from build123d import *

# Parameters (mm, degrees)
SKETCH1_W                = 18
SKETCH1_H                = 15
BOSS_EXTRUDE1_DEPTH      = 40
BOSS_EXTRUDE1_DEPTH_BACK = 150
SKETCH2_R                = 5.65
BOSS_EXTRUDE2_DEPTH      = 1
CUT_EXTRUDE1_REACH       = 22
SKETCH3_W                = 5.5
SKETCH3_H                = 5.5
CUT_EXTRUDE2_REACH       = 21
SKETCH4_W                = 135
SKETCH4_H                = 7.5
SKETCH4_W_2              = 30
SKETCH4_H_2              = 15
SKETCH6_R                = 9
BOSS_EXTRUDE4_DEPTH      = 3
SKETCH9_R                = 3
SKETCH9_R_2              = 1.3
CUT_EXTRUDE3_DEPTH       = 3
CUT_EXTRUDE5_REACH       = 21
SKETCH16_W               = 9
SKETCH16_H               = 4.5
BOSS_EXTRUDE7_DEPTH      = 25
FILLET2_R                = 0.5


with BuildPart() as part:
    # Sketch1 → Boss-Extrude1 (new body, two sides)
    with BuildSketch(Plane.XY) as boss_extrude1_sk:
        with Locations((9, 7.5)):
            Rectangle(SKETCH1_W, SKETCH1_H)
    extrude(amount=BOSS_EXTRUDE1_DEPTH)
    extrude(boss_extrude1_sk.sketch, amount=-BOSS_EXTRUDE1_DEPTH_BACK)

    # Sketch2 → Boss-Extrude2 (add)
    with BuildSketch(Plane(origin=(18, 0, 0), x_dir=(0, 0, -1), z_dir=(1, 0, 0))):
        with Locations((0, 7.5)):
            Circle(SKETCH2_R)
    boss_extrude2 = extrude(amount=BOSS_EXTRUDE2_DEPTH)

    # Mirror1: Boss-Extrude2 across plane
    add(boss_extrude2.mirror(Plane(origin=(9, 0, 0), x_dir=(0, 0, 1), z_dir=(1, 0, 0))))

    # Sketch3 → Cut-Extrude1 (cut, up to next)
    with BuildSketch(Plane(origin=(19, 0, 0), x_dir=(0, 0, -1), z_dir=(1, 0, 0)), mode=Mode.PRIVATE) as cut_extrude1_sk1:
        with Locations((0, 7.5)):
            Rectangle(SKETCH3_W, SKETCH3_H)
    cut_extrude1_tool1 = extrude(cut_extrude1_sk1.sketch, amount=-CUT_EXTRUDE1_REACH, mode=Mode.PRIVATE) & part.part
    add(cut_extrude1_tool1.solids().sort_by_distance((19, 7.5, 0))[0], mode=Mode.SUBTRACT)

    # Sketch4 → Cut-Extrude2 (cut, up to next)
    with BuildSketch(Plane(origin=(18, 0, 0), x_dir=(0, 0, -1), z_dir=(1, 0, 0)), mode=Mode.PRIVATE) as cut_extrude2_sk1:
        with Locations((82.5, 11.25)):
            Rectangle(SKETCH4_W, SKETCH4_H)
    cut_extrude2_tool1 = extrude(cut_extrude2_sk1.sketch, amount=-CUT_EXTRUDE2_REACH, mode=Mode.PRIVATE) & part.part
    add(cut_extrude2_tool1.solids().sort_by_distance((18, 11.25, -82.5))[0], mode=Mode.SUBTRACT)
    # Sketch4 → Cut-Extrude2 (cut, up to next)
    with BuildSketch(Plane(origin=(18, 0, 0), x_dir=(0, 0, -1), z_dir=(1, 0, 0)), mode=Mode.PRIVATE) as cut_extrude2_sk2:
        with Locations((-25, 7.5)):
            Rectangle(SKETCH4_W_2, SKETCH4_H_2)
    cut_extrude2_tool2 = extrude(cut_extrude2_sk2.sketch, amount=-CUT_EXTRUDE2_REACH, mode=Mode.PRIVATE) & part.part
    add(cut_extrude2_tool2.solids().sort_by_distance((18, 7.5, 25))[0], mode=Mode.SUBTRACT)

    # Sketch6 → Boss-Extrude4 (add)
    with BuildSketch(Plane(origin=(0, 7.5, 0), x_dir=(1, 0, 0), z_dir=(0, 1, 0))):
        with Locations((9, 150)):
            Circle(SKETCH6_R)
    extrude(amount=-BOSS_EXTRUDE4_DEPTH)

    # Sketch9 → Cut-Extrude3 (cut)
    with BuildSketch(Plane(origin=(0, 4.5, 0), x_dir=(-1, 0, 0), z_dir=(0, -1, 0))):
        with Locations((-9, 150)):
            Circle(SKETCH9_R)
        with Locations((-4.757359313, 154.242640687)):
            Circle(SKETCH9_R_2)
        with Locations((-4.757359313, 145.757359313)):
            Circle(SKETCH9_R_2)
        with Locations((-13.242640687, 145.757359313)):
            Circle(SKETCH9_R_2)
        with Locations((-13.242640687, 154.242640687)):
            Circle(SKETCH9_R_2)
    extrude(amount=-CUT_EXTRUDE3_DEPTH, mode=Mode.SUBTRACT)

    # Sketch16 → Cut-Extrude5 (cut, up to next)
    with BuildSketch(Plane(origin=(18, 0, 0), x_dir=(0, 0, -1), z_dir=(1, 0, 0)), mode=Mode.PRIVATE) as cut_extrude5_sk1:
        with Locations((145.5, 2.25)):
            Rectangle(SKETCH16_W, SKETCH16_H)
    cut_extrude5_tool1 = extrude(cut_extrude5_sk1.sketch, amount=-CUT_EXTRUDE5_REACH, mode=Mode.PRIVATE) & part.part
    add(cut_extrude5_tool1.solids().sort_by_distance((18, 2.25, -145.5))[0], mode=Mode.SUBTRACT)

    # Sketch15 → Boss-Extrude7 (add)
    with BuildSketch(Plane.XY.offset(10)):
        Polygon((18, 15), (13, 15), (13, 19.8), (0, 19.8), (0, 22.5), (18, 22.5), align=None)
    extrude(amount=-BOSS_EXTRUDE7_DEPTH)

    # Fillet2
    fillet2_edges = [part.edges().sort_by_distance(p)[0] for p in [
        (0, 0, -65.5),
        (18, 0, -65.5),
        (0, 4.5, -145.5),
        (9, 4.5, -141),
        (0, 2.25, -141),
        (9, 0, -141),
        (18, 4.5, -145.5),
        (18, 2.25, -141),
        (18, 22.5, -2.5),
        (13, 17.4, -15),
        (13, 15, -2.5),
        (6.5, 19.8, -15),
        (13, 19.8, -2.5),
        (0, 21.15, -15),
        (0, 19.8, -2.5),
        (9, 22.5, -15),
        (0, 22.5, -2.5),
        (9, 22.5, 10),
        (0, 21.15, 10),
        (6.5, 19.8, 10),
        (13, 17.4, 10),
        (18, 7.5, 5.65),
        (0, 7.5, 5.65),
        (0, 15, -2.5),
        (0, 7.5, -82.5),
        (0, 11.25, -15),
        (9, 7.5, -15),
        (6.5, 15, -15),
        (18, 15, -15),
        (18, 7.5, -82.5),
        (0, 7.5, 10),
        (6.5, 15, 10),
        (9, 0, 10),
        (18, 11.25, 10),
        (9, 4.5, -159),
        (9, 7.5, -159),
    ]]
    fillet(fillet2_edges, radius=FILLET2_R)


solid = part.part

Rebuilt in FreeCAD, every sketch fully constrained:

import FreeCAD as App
import Part
import Sketcher

V = App.Vector


def edges_at(feature, points):
    """Names of the edges that pass closest to the given points."""
    edges = feature.Shape.Edges
    near = lambda p: min(range(len(edges)), key=lambda i: edges[i].distToShape(Part.Vertex(*p))[0])
    return sorted({f"Edge{near(p) + 1}" for p in points})


def add_polygon(sketch, points):
    """Adds a closed chain of lines whose ends are joined by coincident constraints."""
    first, n = sketch.GeometryCount, len(points)
    for a, b in zip(points, points[1:] + points[:1]):
        sketch.addGeometry(Part.LineSegment(App.Vector(*a, 0), App.Vector(*b, 0)), False)
    for i in range(n):
        sketch.addConstraint(Sketcher.Constraint("Coincident", first + i, 2, first + (i + 1) % n, 1))

doc = App.newDocument("Part")
body = doc.addObject("PartDesign::Body", "Body")

# Sketch on XY plane
sketch1 = doc.addObject("Sketcher::SketchObject", "Sketch")
body.addObject(sketch1)
sketch1.AttachmentSupport = (doc.XY_Plane, [""])
sketch1.MapMode = "FlatFace"
add_polygon(sketch1, [(0, 15), (0, 0), (18, 0), (18, 15)])  # lines 0-3
sketch1.addConstraint(Sketcher.Constraint("Vertical", 0))
sketch1.addConstraint(Sketcher.Constraint("Horizontal", 1))
sketch1.addConstraint(Sketcher.Constraint("Vertical", 2))
sketch1.addConstraint(Sketcher.Constraint("Horizontal", 3))
sketch1.addConstraint(Sketcher.Constraint("Coincident", 0, 2, -1, 1))
sketch1.addConstraint(Sketcher.Constraint("DistanceX", 1, 1, 1, 2, 18.0))
sketch1.addConstraint(Sketcher.Constraint("DistanceY", 0, 2, 0, 1, 15.0))
pad1 = doc.addObject("PartDesign::Pad", "Pad")
body.addObject(pad1)
pad1.Profile = sketch1
pad1.Type = "TwoLengths"
pad1.Length = 40
pad1.Length2 = 150

# Sketch on YZ plane
sketch2 = doc.addObject("Sketcher::SketchObject", "Sketch001")
body.addObject(sketch2)
sketch2.AttachmentSupport = (doc.YZ_Plane, [""])
sketch2.MapMode = "FlatFace"
sketch2.AttachmentOffset = App.Placement(V(0, 0, 18), App.Rotation())
sketch2.addGeometry(Part.Circle(V(8, 0, 0), V(0, 0, 1), 6), False)
sketch2.addConstraint(Sketcher.Constraint("PointOnObject", 0, 3, -1))
sketch2.addConstraint(Sketcher.Constraint("Diameter", 0, 11.3))
sketch2.addConstraint(Sketcher.Constraint("DistanceX", -1, 1, 0, 3, 7.5))
pad2 = doc.addObject("PartDesign::Pad", "Pad001")
body.addObject(pad2)
pad2.Profile = sketch2
pad2.Length = 1
doc.recompute()

datumplane = doc.addObject("PartDesign::Plane", "DatumPlane")
body.addObject(datumplane)
datumplane.AttachmentSupport = (doc.YZ_Plane, [""])
datumplane.MapMode = "FlatFace"
datumplane.AttachmentOffset = App.Placement(V(0, 0, 9), App.Rotation())
mirrored = doc.addObject("PartDesign::Mirrored", "Mirrored")
body.addObject(mirrored)
mirrored.Originals = [pad2]
mirrored.MirrorPlane = (datumplane, [""])
body.Tip = mirrored

# Sketch on YZ plane
sketch3 = doc.addObject("Sketcher::SketchObject", "Sketch002")
body.addObject(sketch3)
sketch3.AttachmentSupport = (doc.YZ_Plane, [""])
sketch3.MapMode = "FlatFace"
sketch3.AttachmentOffset = App.Placement(V(0, 0, 19), App.Rotation())
add_polygon(sketch3, [(10, 3), (5, 3), (5, -3), (10, -3)])  # lines 0-3
sketch3.addConstraint(Sketcher.Constraint("Horizontal", 0))
sketch3.addConstraint(Sketcher.Constraint("Vertical", 1))
sketch3.addConstraint(Sketcher.Constraint("Horizontal", 2))
sketch3.addConstraint(Sketcher.Constraint("Vertical", 3))
sketch3.addConstraint(Sketcher.Constraint("Equal", 2, 1))
sketch3.addConstraint(Sketcher.Constraint("DistanceX", 0, 2, 0, 1, 5.5))
sketch3.addConstraint(Sketcher.Constraint("DistanceX", -1, 1, 0, 2, 4.75))
sketch3.addConstraint(Sketcher.Constraint("DistanceY", -1, 1, 0, 2, 2.75))
pocket1 = doc.addObject("PartDesign::Pocket", "Pocket")
body.addObject(pocket1)
pocket1.Profile = sketch3
pocket1.Type = "UpToFirst"

# Sketch on YZ plane
sketch4 = doc.addObject("Sketcher::SketchObject", "Sketch003")
body.addObject(sketch4)
sketch4.AttachmentSupport = (doc.YZ_Plane, [""])
sketch4.MapMode = "FlatFace"
sketch4.AttachmentOffset = App.Placement(V(0, 0, 18), App.Rotation())
add_polygon(sketch4, [(15, -15), (8, -15), (8, -150), (15, -150)])  # lines 0-3
sketch4.addConstraint(Sketcher.Constraint("Horizontal", 0))
sketch4.addConstraint(Sketcher.Constraint("Vertical", 1))
sketch4.addConstraint(Sketcher.Constraint("Horizontal", 2))
sketch4.addConstraint(Sketcher.Constraint("Vertical", 3))
sketch4.addConstraint(Sketcher.Constraint("DistanceY", 1, 2, 1, 1, 135.0))
sketch4.addConstraint(Sketcher.Constraint("DistanceX", 0, 2, 0, 1, 7.5))
sketch4.addConstraint(Sketcher.Constraint("DistanceY", 0, 2, -1, 1, 15.0))
sketch4.addConstraint(Sketcher.Constraint("DistanceX", -1, 1, 2, 2, 15.0))
pocket2 = doc.addObject("PartDesign::Pocket", "Pocket001")
body.addObject(pocket2)
pocket2.Profile = sketch4
pocket2.Type = "UpToFirst"

# Sketch on YZ plane
sketch5 = doc.addObject("Sketcher::SketchObject", "Sketch004")
body.addObject(sketch5)
sketch5.AttachmentSupport = (doc.YZ_Plane, [""])
sketch5.MapMode = "FlatFace"
sketch5.AttachmentOffset = App.Placement(V(0, 0, 18), App.Rotation())
add_polygon(sketch5, [(15, 40), (0, 40), (0, 10), (15, 10)])  # lines 0-3
sketch5.addConstraint(Sketcher.Constraint("Horizontal", 0))
sketch5.addConstraint(Sketcher.Constraint("Vertical", 1))
sketch5.addConstraint(Sketcher.Constraint("Horizontal", 2))
sketch5.addConstraint(Sketcher.Constraint("Vertical", 3))
sketch5.addConstraint(Sketcher.Constraint("PointOnObject", 0, 2, -2))
sketch5.addConstraint(Sketcher.Constraint("DistanceX", 0, 2, 0, 1, 15.0))
sketch5.addConstraint(Sketcher.Constraint("DistanceY", 1, 2, 1, 1, 30.0))
sketch5.addConstraint(Sketcher.Constraint("DistanceY", -1, 1, 0, 2, 40.0))
pocket3 = doc.addObject("PartDesign::Pocket", "Pocket002")
body.addObject(pocket3)
pocket3.Profile = sketch5
pocket3.Type = "UpToFirst"

# Sketch on XZ plane
sketch6 = doc.addObject("Sketcher::SketchObject", "Sketch005")
body.addObject(sketch6)
sketch6.AttachmentSupport = (doc.XZ_Plane, [""])
sketch6.MapMode = "FlatFace"
sketch6.AttachmentOffset = App.Placement(V(0, 0, -7.5), App.Rotation())
sketch6.addGeometry(Part.Circle(V(9, -150, 0), V(0, 0, 1), 9), False)
sketch6.addConstraint(Sketcher.Constraint("Diameter", 0, 18.0))
sketch6.addConstraint(Sketcher.Constraint("DistanceX", -1, 1, 0, 3, 9.0))
sketch6.addConstraint(Sketcher.Constraint("DistanceY", 0, 3, -1, 1, 150.0))
pad3 = doc.addObject("PartDesign::Pad", "Pad002")
body.addObject(pad3)
pad3.Profile = sketch6
pad3.Length = 3

# Sketch on XZ plane
sketch7 = doc.addObject("Sketcher::SketchObject", "Sketch006")
body.addObject(sketch7)
sketch7.AttachmentSupport = (doc.XZ_Plane, [""])
sketch7.MapMode = "FlatFace"
sketch7.AttachmentOffset = App.Placement(V(0, 0, -4.5), App.Rotation())
sketch7.addGeometry(Part.Circle(V(9, -150, 0), V(0, 0, 1), 3), False)
sketch7.addGeometry(Part.Circle(V(4.8, -154.2, 0), V(0, 0, 1), 1.3), False)
sketch7.addGeometry(Part.Circle(V(4.8, -145.8, 0), V(0, 0, 1), 1.3), False)
sketch7.addGeometry(Part.Circle(V(13.2, -145.8, 0), V(0, 0, 1), 1.3), False)
sketch7.addGeometry(Part.Circle(V(13.2, -154.2, 0), V(0, 0, 1), 1.3), False)
sketch7.addConstraint(Sketcher.Constraint("Equal", 1, 2))
sketch7.addConstraint(Sketcher.Constraint("Equal", 2, 3))
sketch7.addConstraint(Sketcher.Constraint("Equal", 3, 4))
sketch7.addConstraint(Sketcher.Constraint("Horizontal", 2, 3, 3, 3))
sketch7.addConstraint(Sketcher.Constraint("Horizontal", 1, 3, 4, 3))
sketch7.addConstraint(Sketcher.Constraint("Vertical", 1, 3, 2, 3))
sketch7.addConstraint(Sketcher.Constraint("Vertical", 3, 3, 4, 3))
sketch7.addConstraint(Sketcher.Constraint("Diameter", 0, 6.0))
sketch7.addConstraint(Sketcher.Constraint("Diameter", 1, 2.6))
sketch7.addConstraint(Sketcher.Constraint("DistanceX", -1, 1, 0, 3, 9.0))
sketch7.addConstraint(Sketcher.Constraint("DistanceY", 0, 3, -1, 1, 150.0))
sketch7.addConstraint(Sketcher.Constraint("DistanceX", -1, 1, 1, 3, 4.757359))
sketch7.addConstraint(Sketcher.Constraint("DistanceY", 1, 3, -1, 1, 154.242641))
sketch7.addConstraint(Sketcher.Constraint("DistanceY", 2, 3, -1, 1, 145.757359))
sketch7.addConstraint(Sketcher.Constraint("DistanceX", -1, 1, 3, 3, 13.242641))
pocket4 = doc.addObject("PartDesign::Pocket", "Pocket003")
body.addObject(pocket4)
pocket4.Profile = sketch7
pocket4.Length = 3

# Sketch on YZ plane
sketch8 = doc.addObject("Sketcher::SketchObject", "Sketch007")
body.addObject(sketch8)
sketch8.AttachmentSupport = (doc.YZ_Plane, [""])
sketch8.MapMode = "FlatFace"
sketch8.AttachmentOffset = App.Placement(V(0, 0, 18), App.Rotation())
add_polygon(sketch8, [(4.5, -141), (0, -141), (0, -150), (4.5, -150)])  # lines 0-3
sketch8.addConstraint(Sketcher.Constraint("Horizontal", 0))
sketch8.addConstraint(Sketcher.Constraint("Vertical", 1))
sketch8.addConstraint(Sketcher.Constraint("Horizontal", 2))
sketch8.addConstraint(Sketcher.Constraint("Vertical", 3))
sketch8.addConstraint(Sketcher.Constraint("PointOnObject", 0, 2, -2))
sketch8.addConstraint(Sketcher.Constraint("DistanceY", 1, 2, 1, 1, 9.0))
sketch8.addConstraint(Sketcher.Constraint("DistanceX", 0, 2, 0, 1, 4.5))
sketch8.addConstraint(Sketcher.Constraint("DistanceY", 0, 2, -1, 1, 141.0))
pocket5 = doc.addObject("PartDesign::Pocket", "Pocket004")
body.addObject(pocket5)
pocket5.Profile = sketch8
pocket5.Type = "UpToFirst"

# Sketch on XY plane
sketch9 = doc.addObject("Sketcher::SketchObject", "Sketch008")
body.addObject(sketch9)
sketch9.AttachmentSupport = (doc.XY_Plane, [""])
sketch9.MapMode = "FlatFace"
sketch9.AttachmentOffset = App.Placement(V(0, 0, 10), App.Rotation())
add_polygon(sketch9, [(13, 15), (18, 15), (18, 22.5), (0, 22.5), (0, 19.8), (13, 19.8)])  # lines 0-5
sketch9.addConstraint(Sketcher.Constraint("Horizontal", 0))
sketch9.addConstraint(Sketcher.Constraint("Vertical", 1))
sketch9.addConstraint(Sketcher.Constraint("Horizontal", 2))
sketch9.addConstraint(Sketcher.Constraint("Vertical", 3))
sketch9.addConstraint(Sketcher.Constraint("Horizontal", 4))
sketch9.addConstraint(Sketcher.Constraint("Vertical", 5))
sketch9.addConstraint(Sketcher.Constraint("PointOnObject", 2, 2, -2))
sketch9.addConstraint(Sketcher.Constraint("DistanceX", 0, 1, 0, 2, 5.0))
sketch9.addConstraint(Sketcher.Constraint("DistanceX", 2, 2, 2, 1, 18.0))
sketch9.addConstraint(Sketcher.Constraint("DistanceY", 1, 1, 1, 2, 7.5))
sketch9.addConstraint(Sketcher.Constraint("DistanceY", 3, 2, 3, 1, 2.7))
sketch9.addConstraint(Sketcher.Constraint("DistanceY", -1, 1, 0, 2, 15.0))
pad4 = doc.addObject("PartDesign::Pad", "Pad003")
body.addObject(pad4)
pad4.Profile = sketch9
pad4.Length = 25
pad4.Reversed = True
doc.recompute()

fillet = doc.addObject("PartDesign::Fillet", "Fillet")
body.addObject(fillet)
fillet.Base = (pad4, edges_at(pad4, [
    (0, 0, -65.5),
    (18, 0, -65.5),
    (0, 4.5, -145.5),
    (9, 4.5, -141),
    (0, 2.25, -141),
    (9, 0, -141),
    (18, 4.5, -145.5),
    (18, 2.25, -141),
    (18, 22.5, -2.5),
    (13, 17.4, -15),
    (13, 15, -2.5),
    (6.5, 19.8, -15),
    (13, 19.8, -2.5),
    (0, 21.15, -15),
    (0, 19.8, -2.5),
    (9, 22.5, -15),
    (0, 22.5, -2.5),
    (9, 22.5, 10),
    (0, 21.15, 10),
    (6.5, 19.8, 10),
    (13, 17.4, 10),
    (18, 7.5, 5.65),
    (0, 7.5, 5.65),
    (0, 15, -2.5),
    (0, 7.5, -82.5),
    (0, 11.25, -15),
    (9, 7.5, -15),
    (6.5, 15, -15),
    (18, 15, -15),
    (18, 7.5, -82.5),
    (0, 7.5, 10),
    (6.5, 15, 10),
    (9, 0, 10),
    (18, 11.25, 10),
    (9, 4.5, -159),
    (9, 7.5, -159),
]))
fillet.Radius = 0.5

doc.recompute()
